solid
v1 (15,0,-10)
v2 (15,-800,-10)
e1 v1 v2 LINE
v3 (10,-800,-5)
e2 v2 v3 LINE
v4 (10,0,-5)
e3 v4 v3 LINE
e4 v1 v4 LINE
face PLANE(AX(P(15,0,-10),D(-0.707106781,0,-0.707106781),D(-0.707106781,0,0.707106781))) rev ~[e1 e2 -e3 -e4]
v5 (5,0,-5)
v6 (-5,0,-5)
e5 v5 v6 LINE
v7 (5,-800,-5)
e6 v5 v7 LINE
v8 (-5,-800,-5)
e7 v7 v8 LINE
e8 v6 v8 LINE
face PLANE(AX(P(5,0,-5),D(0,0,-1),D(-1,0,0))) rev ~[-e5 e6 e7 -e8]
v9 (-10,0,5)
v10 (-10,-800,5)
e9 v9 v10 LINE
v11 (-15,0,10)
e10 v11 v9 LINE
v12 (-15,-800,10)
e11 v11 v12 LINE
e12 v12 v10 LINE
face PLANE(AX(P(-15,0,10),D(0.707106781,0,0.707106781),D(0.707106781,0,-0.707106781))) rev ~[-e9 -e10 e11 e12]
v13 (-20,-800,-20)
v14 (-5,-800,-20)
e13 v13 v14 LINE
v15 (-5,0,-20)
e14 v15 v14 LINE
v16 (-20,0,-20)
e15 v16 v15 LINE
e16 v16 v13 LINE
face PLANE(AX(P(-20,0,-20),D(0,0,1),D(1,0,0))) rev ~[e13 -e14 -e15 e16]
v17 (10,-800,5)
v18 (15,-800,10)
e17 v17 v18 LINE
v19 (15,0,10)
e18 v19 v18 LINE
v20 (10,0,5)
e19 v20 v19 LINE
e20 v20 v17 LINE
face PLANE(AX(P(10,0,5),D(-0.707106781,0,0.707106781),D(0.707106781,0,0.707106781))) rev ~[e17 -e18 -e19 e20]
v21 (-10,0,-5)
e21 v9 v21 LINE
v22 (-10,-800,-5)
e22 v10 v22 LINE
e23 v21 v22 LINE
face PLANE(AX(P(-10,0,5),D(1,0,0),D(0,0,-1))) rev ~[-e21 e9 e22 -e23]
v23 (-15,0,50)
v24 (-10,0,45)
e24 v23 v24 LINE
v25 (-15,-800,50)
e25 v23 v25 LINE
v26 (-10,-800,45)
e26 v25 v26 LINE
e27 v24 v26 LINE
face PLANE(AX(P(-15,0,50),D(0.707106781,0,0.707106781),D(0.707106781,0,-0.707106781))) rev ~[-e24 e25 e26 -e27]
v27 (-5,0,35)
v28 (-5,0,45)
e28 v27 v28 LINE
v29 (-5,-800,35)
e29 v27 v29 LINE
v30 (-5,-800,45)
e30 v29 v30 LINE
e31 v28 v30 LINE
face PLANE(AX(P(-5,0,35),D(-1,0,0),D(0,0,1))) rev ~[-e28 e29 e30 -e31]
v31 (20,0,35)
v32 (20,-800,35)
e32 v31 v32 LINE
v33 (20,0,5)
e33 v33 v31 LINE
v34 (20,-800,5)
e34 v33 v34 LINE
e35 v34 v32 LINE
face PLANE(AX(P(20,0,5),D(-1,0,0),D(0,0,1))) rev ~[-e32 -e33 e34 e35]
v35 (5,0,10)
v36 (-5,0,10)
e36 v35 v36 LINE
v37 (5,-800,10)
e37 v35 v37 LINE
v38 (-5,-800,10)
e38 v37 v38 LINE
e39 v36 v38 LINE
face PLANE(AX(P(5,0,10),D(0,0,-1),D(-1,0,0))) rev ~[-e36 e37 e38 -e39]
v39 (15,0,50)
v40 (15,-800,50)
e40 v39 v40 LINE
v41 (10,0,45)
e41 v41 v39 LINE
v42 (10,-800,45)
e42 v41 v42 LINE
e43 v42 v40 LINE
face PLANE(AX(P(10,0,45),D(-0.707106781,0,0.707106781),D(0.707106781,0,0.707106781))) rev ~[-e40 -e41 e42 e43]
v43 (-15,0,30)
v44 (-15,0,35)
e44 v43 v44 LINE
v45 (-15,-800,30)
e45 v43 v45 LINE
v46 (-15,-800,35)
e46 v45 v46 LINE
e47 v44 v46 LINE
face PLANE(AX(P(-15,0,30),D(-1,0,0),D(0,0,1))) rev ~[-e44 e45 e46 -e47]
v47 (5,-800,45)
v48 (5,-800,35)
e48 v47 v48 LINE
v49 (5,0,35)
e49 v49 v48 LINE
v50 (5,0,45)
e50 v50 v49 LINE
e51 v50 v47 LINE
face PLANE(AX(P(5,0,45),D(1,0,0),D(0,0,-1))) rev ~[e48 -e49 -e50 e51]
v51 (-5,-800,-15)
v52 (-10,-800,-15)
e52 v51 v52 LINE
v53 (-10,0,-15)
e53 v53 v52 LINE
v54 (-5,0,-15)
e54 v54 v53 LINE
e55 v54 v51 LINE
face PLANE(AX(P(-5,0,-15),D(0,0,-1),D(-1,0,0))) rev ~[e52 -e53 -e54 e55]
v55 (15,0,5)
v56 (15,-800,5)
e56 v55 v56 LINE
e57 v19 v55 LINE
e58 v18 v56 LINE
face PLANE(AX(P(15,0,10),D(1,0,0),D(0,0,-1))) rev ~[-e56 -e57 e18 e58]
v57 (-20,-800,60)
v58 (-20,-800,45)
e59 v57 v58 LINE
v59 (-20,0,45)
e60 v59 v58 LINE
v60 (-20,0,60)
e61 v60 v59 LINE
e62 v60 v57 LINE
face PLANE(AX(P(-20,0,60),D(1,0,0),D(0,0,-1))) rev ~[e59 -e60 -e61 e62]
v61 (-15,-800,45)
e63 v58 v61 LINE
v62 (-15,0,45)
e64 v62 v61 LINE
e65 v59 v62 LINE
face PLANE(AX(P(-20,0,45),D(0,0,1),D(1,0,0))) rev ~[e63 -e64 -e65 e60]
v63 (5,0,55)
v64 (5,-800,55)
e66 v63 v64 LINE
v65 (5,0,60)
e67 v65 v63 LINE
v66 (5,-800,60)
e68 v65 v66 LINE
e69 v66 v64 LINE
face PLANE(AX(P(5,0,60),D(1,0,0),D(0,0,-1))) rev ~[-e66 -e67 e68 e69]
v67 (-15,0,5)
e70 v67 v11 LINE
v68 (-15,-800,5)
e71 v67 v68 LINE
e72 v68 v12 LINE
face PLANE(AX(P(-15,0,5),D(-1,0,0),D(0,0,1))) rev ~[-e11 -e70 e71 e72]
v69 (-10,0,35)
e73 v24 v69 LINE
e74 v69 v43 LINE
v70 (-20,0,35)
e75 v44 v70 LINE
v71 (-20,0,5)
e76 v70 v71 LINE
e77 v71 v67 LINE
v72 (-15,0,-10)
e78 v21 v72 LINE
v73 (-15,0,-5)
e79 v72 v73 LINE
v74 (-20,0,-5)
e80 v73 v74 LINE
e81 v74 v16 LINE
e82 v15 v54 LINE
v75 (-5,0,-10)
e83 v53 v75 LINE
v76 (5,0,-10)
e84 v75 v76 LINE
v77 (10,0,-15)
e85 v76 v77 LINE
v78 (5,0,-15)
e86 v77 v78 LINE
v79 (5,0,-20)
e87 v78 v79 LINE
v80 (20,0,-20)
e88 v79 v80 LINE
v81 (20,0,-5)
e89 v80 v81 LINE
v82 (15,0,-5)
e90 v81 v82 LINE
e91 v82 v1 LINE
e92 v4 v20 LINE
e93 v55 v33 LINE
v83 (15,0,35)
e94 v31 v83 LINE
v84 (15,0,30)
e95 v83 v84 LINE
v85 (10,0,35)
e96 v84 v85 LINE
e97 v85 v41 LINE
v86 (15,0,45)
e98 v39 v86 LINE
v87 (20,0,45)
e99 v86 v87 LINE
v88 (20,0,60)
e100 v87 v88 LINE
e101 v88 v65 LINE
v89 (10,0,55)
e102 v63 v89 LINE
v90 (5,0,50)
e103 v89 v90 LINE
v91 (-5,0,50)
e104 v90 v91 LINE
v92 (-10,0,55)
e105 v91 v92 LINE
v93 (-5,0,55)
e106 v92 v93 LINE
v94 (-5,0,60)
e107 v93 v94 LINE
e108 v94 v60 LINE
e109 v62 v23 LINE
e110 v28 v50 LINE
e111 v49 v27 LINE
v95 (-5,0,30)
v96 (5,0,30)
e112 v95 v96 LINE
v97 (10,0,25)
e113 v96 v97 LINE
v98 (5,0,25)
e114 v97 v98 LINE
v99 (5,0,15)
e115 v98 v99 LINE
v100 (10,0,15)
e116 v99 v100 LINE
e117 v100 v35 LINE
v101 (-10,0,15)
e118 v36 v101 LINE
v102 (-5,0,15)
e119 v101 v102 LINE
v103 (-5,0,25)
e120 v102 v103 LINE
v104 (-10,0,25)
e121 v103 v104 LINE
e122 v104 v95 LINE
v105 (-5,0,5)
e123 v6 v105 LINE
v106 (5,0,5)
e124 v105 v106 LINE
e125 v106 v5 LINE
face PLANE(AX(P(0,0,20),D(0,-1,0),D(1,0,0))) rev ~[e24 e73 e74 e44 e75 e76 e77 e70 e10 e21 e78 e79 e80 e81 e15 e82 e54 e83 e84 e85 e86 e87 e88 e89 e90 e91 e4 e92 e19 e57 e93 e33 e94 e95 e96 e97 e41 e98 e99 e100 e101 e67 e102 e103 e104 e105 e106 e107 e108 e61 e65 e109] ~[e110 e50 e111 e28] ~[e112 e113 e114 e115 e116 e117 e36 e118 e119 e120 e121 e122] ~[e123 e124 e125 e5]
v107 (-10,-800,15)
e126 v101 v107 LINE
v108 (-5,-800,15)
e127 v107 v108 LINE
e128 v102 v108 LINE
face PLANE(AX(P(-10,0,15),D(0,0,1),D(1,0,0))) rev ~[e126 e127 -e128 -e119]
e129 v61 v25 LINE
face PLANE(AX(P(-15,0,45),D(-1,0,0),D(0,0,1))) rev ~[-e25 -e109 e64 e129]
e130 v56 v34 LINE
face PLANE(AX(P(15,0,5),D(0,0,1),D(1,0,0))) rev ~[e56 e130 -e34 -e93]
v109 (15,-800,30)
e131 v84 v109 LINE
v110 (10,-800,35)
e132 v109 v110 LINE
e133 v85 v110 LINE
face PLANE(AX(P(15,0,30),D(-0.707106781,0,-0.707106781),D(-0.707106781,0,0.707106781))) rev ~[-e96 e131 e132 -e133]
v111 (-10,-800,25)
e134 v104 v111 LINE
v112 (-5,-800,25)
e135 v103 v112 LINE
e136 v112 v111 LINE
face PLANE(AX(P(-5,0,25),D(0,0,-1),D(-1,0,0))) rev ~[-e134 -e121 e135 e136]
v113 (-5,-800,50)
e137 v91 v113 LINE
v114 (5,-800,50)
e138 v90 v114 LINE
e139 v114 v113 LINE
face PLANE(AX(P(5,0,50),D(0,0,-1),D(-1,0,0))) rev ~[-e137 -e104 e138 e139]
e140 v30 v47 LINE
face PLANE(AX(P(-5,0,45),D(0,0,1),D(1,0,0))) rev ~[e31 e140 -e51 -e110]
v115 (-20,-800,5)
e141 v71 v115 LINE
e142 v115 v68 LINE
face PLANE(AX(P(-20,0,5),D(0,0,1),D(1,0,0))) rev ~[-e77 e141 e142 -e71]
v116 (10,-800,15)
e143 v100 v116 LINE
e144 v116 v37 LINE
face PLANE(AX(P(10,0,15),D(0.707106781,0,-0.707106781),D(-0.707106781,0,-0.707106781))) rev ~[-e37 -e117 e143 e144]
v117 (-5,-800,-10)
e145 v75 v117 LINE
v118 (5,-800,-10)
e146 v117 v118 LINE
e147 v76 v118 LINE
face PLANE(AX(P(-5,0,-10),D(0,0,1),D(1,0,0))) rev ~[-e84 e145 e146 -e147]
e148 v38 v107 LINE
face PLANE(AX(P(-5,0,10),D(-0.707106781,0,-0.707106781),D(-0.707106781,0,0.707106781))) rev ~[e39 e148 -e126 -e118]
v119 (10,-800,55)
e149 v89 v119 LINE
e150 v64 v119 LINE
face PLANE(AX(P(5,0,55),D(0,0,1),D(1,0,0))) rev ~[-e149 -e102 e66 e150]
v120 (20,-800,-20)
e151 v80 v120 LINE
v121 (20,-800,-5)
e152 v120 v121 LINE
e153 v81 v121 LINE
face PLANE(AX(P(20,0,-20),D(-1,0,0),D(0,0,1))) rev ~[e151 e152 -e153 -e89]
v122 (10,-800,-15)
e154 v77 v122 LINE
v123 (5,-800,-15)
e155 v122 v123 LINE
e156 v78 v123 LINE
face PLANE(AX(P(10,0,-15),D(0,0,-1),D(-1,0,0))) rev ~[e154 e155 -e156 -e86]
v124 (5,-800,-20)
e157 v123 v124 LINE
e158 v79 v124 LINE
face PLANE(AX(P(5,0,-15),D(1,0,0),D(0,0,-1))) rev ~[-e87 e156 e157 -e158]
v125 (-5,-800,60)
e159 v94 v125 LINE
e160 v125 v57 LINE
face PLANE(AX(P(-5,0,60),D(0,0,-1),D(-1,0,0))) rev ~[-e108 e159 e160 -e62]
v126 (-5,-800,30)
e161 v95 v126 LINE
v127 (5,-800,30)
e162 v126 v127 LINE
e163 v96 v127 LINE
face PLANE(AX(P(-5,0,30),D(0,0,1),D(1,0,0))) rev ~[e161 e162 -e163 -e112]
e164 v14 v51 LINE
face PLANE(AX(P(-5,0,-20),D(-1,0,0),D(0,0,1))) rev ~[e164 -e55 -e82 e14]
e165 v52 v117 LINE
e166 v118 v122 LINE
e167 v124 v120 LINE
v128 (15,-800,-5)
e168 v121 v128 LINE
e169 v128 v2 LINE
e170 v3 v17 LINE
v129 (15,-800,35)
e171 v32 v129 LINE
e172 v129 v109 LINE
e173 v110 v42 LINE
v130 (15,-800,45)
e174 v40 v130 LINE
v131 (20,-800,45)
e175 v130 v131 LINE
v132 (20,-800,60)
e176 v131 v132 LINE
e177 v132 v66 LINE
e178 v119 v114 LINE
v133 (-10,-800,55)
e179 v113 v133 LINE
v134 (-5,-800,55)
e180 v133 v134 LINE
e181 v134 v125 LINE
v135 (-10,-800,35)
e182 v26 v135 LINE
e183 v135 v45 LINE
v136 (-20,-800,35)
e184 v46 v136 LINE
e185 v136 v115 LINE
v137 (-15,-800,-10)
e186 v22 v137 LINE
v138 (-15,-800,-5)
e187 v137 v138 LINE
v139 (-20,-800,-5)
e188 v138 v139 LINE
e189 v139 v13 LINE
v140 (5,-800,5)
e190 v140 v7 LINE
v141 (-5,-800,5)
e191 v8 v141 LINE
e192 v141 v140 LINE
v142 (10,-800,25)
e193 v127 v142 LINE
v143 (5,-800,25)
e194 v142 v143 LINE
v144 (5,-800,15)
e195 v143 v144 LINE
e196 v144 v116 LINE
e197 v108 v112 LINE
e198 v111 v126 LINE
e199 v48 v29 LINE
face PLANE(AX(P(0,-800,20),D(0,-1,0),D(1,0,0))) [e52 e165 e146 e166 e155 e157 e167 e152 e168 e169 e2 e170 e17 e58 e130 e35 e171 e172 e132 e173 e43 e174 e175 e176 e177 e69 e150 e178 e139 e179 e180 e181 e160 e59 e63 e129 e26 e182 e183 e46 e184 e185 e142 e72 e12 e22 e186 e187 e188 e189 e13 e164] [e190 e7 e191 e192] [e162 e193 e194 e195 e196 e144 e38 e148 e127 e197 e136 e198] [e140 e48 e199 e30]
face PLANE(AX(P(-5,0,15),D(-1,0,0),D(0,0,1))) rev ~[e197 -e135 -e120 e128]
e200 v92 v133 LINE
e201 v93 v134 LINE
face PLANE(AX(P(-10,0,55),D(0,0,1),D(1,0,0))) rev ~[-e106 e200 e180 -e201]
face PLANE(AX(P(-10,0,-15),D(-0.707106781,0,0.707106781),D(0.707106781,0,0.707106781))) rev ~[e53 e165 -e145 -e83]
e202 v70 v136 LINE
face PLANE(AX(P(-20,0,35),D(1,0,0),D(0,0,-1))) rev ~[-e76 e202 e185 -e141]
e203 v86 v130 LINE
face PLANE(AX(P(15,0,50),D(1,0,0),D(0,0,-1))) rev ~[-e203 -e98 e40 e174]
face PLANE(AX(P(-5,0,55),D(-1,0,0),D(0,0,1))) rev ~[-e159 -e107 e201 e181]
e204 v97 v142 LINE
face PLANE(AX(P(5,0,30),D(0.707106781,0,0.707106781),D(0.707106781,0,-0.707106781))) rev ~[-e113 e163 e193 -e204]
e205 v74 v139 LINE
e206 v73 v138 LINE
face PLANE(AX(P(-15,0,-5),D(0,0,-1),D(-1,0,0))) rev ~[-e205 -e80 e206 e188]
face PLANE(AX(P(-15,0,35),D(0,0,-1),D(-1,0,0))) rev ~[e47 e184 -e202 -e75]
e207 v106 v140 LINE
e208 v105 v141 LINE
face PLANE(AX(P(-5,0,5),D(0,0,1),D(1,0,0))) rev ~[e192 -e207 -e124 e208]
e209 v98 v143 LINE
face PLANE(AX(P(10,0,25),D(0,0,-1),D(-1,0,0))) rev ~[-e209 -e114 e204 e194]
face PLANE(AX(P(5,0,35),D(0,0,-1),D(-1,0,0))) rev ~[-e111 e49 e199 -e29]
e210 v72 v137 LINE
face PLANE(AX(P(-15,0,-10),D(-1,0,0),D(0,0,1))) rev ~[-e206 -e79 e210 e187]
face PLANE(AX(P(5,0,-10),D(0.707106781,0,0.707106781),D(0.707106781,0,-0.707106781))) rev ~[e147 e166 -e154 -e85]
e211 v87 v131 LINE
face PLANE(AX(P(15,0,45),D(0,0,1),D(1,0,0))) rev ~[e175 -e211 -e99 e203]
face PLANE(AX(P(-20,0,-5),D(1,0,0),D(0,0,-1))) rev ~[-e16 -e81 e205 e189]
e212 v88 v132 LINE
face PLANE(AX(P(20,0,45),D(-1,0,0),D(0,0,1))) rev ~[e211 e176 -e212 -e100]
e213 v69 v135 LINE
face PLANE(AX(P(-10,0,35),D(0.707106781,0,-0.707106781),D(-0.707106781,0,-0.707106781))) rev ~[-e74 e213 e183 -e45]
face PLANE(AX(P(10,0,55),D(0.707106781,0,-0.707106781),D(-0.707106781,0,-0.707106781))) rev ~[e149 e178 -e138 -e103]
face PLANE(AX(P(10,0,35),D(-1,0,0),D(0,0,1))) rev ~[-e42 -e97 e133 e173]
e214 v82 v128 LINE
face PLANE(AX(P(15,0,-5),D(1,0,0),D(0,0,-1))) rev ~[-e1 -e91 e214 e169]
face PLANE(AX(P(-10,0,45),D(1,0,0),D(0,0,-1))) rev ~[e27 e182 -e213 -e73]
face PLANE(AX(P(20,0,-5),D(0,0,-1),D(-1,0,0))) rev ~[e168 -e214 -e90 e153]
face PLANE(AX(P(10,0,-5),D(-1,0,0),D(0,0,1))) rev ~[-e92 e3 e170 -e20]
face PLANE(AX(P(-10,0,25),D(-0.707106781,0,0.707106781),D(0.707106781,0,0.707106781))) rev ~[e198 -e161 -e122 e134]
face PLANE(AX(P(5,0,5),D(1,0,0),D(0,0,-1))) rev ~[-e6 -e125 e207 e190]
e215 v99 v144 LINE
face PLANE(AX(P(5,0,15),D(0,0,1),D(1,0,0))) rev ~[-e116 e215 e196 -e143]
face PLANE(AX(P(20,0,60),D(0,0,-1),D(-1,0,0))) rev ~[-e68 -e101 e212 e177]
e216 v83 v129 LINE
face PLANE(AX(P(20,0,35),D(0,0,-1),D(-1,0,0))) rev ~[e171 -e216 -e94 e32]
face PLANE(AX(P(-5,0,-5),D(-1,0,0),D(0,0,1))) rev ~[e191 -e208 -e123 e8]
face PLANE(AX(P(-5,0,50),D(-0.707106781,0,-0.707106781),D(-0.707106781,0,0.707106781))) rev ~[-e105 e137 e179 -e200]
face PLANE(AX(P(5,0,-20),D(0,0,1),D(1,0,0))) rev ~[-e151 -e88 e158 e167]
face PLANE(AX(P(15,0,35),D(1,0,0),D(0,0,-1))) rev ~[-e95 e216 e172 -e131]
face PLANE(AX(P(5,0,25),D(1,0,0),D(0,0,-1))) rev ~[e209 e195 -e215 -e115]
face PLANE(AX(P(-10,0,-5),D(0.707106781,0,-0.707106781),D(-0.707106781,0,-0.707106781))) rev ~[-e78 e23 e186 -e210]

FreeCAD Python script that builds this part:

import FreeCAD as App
import Part
import Sketcher

V = App.Vector


def add_polygon(sketch, points):
    """Adds a closed chain of lines whose ends are joined by coincident constraints."""
    first, n = sketch.GeometryCount, len(points)
    for a, b in zip(points, points[1:] + points[:1]):
        sketch.addGeometry(Part.LineSegment(App.Vector(*a, 0), App.Vector(*b, 0)), False)
    for i in range(n):
        sketch.addConstraint(Sketcher.Constraint("Coincident", first + i, 2, first + (i + 1) % n, 1))

doc = App.newDocument("Part")
params = doc.addObject("Spreadsheet::Sheet", "Params")
for row, (alias, value) in enumerate([
    ("sketch1_width", "15 mm"),
    ("sketch1_width2", "10 mm"),
    ("pad1_length", "800 mm"),
], start=1):
    params.set(f"A{row}", alias)
    params.set(f"B{row}", "=" + value)
    params.setAlias(f"B{row}", alias)

body = doc.addObject("PartDesign::Body", "Body")

# Sketch on XZ plane
sketch1 = body.newObject("Sketcher::SketchObject", "Sketch")
sketch1.AttachmentSupport = (doc.getObject("XZ_Plane"), [""])
sketch1.MapMode = "FlatFace"
add_polygon(sketch1, [(5, -20), (20, -20), (20, -5), (15, -5), (15, -10), (10, -5), (10, 5), (15, 10), (15, 5), (20, 5), (20, 35), (15, 35), (15, 30), (10, 35), (10, 45), (15, 50), (15, 45), (20, 45), (20, 60), (5, 60), (5, 55), (10, 55), (5, 50), (-5, 50), (-10, 55), (-5, 55), (-5, 60), (-20, 60), (-20, 45), (-15, 45), (-15, 50), (-10, 45), (-10, 35), (-15, 30), (-15, 35), (-20, 35), (-20, 5), (-15, 5), (-15, 10), (-10, 5), (-10, -5), (-15, -10), (-15, -5), (-20, -5), (-20, -20), (-5, -20), (-5, -15), (-10, -15), (-5, -10), (5, -10), (10, -15), (5, -15)])  # lines 0-51
add_polygon(sketch1, [(-5, -5), (-5, 5), (5, 5), (5, -5)])  # lines 52-55
add_polygon(sketch1, [(-10, 15), (-5, 15), (-5, 25), (-10, 25), (-5, 30), (5, 30), (10, 25), (5, 25), (5, 15), (10, 15), (5, 10), (-5, 10)])  # lines 56-67
add_polygon(sketch1, [(-5, 35), (-5, 45), (5, 45), (5, 35)])  # lines 68-71
sketch1.addConstraint(Sketcher.Constraint("Horizontal", 0))
sketch1.addConstraint(Sketcher.Constraint("Vertical", 1))
sketch1.addConstraint(Sketcher.Constraint("Horizontal", 2))
sketch1.addConstraint(Sketcher.Constraint("Vertical", 3))
sketch1.addConstraint(Sketcher.Constraint("Vertical", 5))
sketch1.addConstraint(Sketcher.Constraint("Vertical", 7))
sketch1.addConstraint(Sketcher.Constraint("Horizontal", 8))
sketch1.addConstraint(Sketcher.Constraint("Vertical", 9))
sketch1.addConstraint(Sketcher.Constraint("Horizontal", 10))
sketch1.addConstraint(Sketcher.Constraint("Vertical", 11))
sketch1.addConstraint(Sketcher.Constraint("Vertical", 13))
sketch1.addConstraint(Sketcher.Constraint("Vertical", 15))
sketch1.addConstraint(Sketcher.Constraint("Horizontal", 16))
sketch1.addConstraint(Sketcher.Constraint("Vertical", 17))
sketch1.addConstraint(Sketcher.Constraint("Horizontal", 18))
sketch1.addConstraint(Sketcher.Constraint("Vertical", 19))
sketch1.addConstraint(Sketcher.Constraint("Horizontal", 20))
sketch1.addConstraint(Sketcher.Constraint("Horizontal", 22))
sketch1.addConstraint(Sketcher.Constraint("Horizontal", 24))
sketch1.addConstraint(Sketcher.Constraint("Vertical", 25))
sketch1.addConstraint(Sketcher.Constraint("Horizontal", 26))
sketch1.addConstraint(Sketcher.Constraint("Vertical", 27))
sketch1.addConstraint(Sketcher.Constraint("Horizontal", 28))
sketch1.addConstraint(Sketcher.Constraint("Vertical", 29))
sketch1.addConstraint(Sketcher.Constraint("Vertical", 31))
sketch1.addConstraint(Sketcher.Constraint("Vertical", 33))
sketch1.addConstraint(Sketcher.Constraint("Horizontal", 34))
sketch1.addConstraint(Sketcher.Constraint("Vertical", 35))
sketch1.addConstraint(Sketcher.Constraint("Horizontal", 36))
sketch1.addConstraint(Sketcher.Constraint("Vertical", 37))
sketch1.addConstraint(Sketcher.Constraint("Vertical", 39))
sketch1.addConstraint(Sketcher.Constraint("Vertical", 41))
sketch1.addConstraint(Sketcher.Constraint("Horizontal", 42))
sketch1.addConstraint(Sketcher.Constraint("Vertical", 43))
sketch1.addConstraint(Sketcher.Constraint("Horizontal", 44))
sketch1.addConstraint(Sketcher.Constraint("Vertical", 45))
sketch1.addConstraint(Sketcher.Constraint("Horizontal", 46))
sketch1.addConstraint(Sketcher.Constraint("Horizontal", 48))
sketch1.addConstraint(Sketcher.Constraint("Horizontal", 50))
sketch1.addConstraint(Sketcher.Constraint("Vertical", 51))
sketch1.addConstraint(Sketcher.Constraint("Vertical", 52))
sketch1.addConstraint(Sketcher.Constraint("Horizontal", 53))
sketch1.addConstraint(Sketcher.Constraint("Vertical", 54))
sketch1.addConstraint(Sketcher.Constraint("Horizontal", 55))
sketch1.addConstraint(Sketcher.Constraint("Horizontal", 56))
sketch1.addConstraint(Sketcher.Constraint("Vertical", 57))
sketch1.addConstraint(Sketcher.Constraint("Horizontal", 58))
sketch1.addConstraint(Sketcher.Constraint("Horizontal", 60))
sketch1.addConstraint(Sketcher.Constraint("Horizontal", 62))
sketch1.addConstraint(Sketcher.Constraint("Vertical", 63))
sketch1.addConstraint(Sketcher.Constraint("Horizontal", 64))
sketch1.addConstraint(Sketcher.Constraint("Horizontal", 66))
sketch1.addConstraint(Sketcher.Constraint("Vertical", 68))
sketch1.addConstraint(Sketcher.Constraint("Horizontal", 69))
sketch1.addConstraint(Sketcher.Constraint("Vertical", 70))
sketch1.addConstraint(Sketcher.Constraint("Horizontal", 71))
sketch1.addConstraint(Sketcher.Constraint("Symmetric", 1, 2, 35, 2, -1, 1))
sketch1.addConstraint(Sketcher.Constraint("Symmetric", 3, 2, 37, 2, -1, 1))
sketch1.addConstraint(Sketcher.Constraint("Symmetric", 4, 2, 38, 2, -1, 1))
sketch1.addConstraint(Sketcher.Constraint("Symmetric", 6, 2, 40, 2, -1, 1))
sketch1.addConstraint(Sketcher.Constraint("Symmetric", 8, 2, 42, 2, -1, 1))
sketch1.addConstraint(Sketcher.Constraint("Symmetric", 52, 2, 54, 2, -1, 1))
sketch1.addConstraint(Sketcher.Constraint("Symmetric", 50, 2, 56, 2, -1, 1))
sketch1.addConstraint(Sketcher.Constraint("Symmetric", 45, 2, 63, 2, -1, 1))
sketch1.addConstraint(Sketcher.Constraint("Symmetric", 47, 2, 65, 2, -1, 1))
sketch1.addConstraint(Sketcher.Constraint("Symmetric", 20, 2, 23, 2, -2))
sketch1.addConstraint(Sketcher.Constraint("Symmetric", 18, 2, 25, 2, -2))
sketch1.addConstraint(Sketcher.Constraint("Symmetric", 16, 2, 27, 2, -2))
sketch1.addConstraint(Sketcher.Constraint("Symmetric", 14, 2, 29, 2, -2))
sketch1.addConstraint(Sketcher.Constraint("Symmetric", 13, 2, 30, 2, -2))
sketch1.addConstraint(Sketcher.Constraint("Symmetric", 11, 2, 32, 2, -2))
sketch1.addConstraint(Sketcher.Constraint("Symmetric", 9, 2, 34, 2, -2))
sketch1.addConstraint(Sketcher.Constraint("Symmetric", 7, 2, 36, 2, -2))
sketch1.addConstraint(Sketcher.Constraint("Symmetric", 46, 2, 49, 2, -2))
sketch1.addConstraint(Sketcher.Constraint("Symmetric", 44, 2, 51, 2, -2))
sketch1.addConstraint(Sketcher.Constraint("Symmetric", 58, 2, 61, 2, -2))
sketch1.addConstraint(Sketcher.Constraint("Perpendicular", 4, 6))
sketch1.addConstraint(Sketcher.Constraint("Perpendicular", 6, 12))
sketch1.addConstraint(Sketcher.Constraint("Perpendicular", 12, 14))
sketch1.addConstraint(Sketcher.Constraint("Parallel", 14, 21))
sketch1.addConstraint(Sketcher.Constraint("Perpendicular", 21, 23))
sketch1.addConstraint(Sketcher.Constraint("Parallel", 23, 30))
sketch1.addConstraint(Sketcher.Constraint("Perpendicular", 30, 32))
sketch1.addConstraint(Sketcher.Constraint("Perpendicular", 38, 40))
sketch1.addConstraint(Sketcher.Constraint("Parallel", 40, 47))
sketch1.addConstraint(Sketcher.Constraint("Perpendicular", 47, 49))
sketch1.addConstraint(Sketcher.Constraint("Perpendicular", 49, 59))
sketch1.addConstraint(Sketcher.Constraint("Perpendicular", 59, 61))
sketch1.addConstraint(Sketcher.Constraint("Perpendicular", 61, 65))
sketch1.addConstraint(Sketcher.Constraint("Perpendicular", 65, 67))
sketch1.addConstraint(Sketcher.Constraint("Horizontal", 2, 2, 4, 2))
sketch1.addConstraint(Sketcher.Constraint("Horizontal", 5, 2, 7, 2))
sketch1.addConstraint(Sketcher.Constraint("Horizontal", 10, 2, 12, 2))
sketch1.addConstraint(Sketcher.Constraint("Horizontal", 13, 2, 15, 2))
sketch1.addConstraint(Sketcher.Constraint("Horizontal", 14, 2, 21, 2))
sketch1.addConstraint(Sketcher.Constraint("Horizontal", 40, 2, 47, 2))
sketch1.addConstraint(Sketcher.Constraint("Horizontal", 38, 2, 52, 2))
sketch1.addConstraint(Sketcher.Constraint("Horizontal", 32, 2, 59, 2))
sketch1.addConstraint(Sketcher.Constraint("Horizontal", 30, 2, 68, 2))
sketch1.addConstraint(Sketcher.Constraint("Horizontal", 34, 2, 70, 2))
sketch1.addConstraint(Sketcher.Constraint("Vertical", 7, 2, 10, 2))
sketch1.addConstraint(Sketcher.Constraint("Vertical", 5, 2, 12, 2))
sketch1.addConstraint(Sketcher.Constraint("Vertical", 11, 2, 14, 2))
sketch1.addConstraint(Sketcher.Constraint("Vertical", 9, 2, 16, 2))
sketch1.addConstraint(Sketcher.Constraint("Vertical", 13, 2, 20, 2))
sketch1.addConstraint(Sketcher.Constraint("Vertical", 19, 2, 21, 2))
sketch1.addConstraint(Sketcher.Constraint("Vertical", 25, 2, 44, 2))
sketch1.addConstraint(Sketcher.Constraint("Vertical", 39, 2, 46, 2))
sketch1.addConstraint(Sketcher.Constraint("Vertical", 45, 2, 47, 2))
sketch1.addConstraint(Sketcher.Constraint("Vertical", 47, 2, 52, 2))
sketch1.addConstraint(Sketcher.Constraint("Vertical", 46, 2, 58, 2))
sketch1.addConstraint(Sketcher.Constraint("Vertical", 57, 2, 59, 2))
sketch1.addConstraint(Sketcher.Constraint("Vertical", 59, 2, 66, 2))
sketch1.addConstraint(Sketcher.Constraint("Vertical", 66, 2, 68, 2))
sketch1.addConstraint(Sketcher.Constraint("Vertical", 65, 2, 69, 2))
sketch1.addConstraint(Sketcher.Constraint("Equal", 16, 20))
sketch1.addConstraint(Sketcher.Constraint("Equal", 44, 1))
sketch1.addConstraint(Sketcher.Constraint("Equal", 64, 3))
sketch1.addConstraint(Sketcher.Constraint("Equal", 71, 5))
sketch1.addConstraint(Sketcher.Constraint("Equal", 5, 13))
sketch1.addConstraint(Sketcher.Constraint("Equal", 1, 17))
sketch1.addConstraint(Sketcher.Constraint("Equal", 54, 57))
sketch1.addConstraint(Sketcher.Constraint("DistanceX", 0, 1, 0, 2, 15.0))
sketch1.addConstraint(Sketcher.Constraint("DistanceX", 22, 2, 22, 1, 10.0))
sketch1.setExpression("Constraints[194]", "Params.sketch1_width")
sketch1.setExpression("Constraints[195]", "Params.sketch1_width2")
pad1 = body.newObject("PartDesign::Pad", "Pad")
pad1.Profile = sketch1
pad1.setExpression("Length", "Params.pad1_length")

doc.recompute()
